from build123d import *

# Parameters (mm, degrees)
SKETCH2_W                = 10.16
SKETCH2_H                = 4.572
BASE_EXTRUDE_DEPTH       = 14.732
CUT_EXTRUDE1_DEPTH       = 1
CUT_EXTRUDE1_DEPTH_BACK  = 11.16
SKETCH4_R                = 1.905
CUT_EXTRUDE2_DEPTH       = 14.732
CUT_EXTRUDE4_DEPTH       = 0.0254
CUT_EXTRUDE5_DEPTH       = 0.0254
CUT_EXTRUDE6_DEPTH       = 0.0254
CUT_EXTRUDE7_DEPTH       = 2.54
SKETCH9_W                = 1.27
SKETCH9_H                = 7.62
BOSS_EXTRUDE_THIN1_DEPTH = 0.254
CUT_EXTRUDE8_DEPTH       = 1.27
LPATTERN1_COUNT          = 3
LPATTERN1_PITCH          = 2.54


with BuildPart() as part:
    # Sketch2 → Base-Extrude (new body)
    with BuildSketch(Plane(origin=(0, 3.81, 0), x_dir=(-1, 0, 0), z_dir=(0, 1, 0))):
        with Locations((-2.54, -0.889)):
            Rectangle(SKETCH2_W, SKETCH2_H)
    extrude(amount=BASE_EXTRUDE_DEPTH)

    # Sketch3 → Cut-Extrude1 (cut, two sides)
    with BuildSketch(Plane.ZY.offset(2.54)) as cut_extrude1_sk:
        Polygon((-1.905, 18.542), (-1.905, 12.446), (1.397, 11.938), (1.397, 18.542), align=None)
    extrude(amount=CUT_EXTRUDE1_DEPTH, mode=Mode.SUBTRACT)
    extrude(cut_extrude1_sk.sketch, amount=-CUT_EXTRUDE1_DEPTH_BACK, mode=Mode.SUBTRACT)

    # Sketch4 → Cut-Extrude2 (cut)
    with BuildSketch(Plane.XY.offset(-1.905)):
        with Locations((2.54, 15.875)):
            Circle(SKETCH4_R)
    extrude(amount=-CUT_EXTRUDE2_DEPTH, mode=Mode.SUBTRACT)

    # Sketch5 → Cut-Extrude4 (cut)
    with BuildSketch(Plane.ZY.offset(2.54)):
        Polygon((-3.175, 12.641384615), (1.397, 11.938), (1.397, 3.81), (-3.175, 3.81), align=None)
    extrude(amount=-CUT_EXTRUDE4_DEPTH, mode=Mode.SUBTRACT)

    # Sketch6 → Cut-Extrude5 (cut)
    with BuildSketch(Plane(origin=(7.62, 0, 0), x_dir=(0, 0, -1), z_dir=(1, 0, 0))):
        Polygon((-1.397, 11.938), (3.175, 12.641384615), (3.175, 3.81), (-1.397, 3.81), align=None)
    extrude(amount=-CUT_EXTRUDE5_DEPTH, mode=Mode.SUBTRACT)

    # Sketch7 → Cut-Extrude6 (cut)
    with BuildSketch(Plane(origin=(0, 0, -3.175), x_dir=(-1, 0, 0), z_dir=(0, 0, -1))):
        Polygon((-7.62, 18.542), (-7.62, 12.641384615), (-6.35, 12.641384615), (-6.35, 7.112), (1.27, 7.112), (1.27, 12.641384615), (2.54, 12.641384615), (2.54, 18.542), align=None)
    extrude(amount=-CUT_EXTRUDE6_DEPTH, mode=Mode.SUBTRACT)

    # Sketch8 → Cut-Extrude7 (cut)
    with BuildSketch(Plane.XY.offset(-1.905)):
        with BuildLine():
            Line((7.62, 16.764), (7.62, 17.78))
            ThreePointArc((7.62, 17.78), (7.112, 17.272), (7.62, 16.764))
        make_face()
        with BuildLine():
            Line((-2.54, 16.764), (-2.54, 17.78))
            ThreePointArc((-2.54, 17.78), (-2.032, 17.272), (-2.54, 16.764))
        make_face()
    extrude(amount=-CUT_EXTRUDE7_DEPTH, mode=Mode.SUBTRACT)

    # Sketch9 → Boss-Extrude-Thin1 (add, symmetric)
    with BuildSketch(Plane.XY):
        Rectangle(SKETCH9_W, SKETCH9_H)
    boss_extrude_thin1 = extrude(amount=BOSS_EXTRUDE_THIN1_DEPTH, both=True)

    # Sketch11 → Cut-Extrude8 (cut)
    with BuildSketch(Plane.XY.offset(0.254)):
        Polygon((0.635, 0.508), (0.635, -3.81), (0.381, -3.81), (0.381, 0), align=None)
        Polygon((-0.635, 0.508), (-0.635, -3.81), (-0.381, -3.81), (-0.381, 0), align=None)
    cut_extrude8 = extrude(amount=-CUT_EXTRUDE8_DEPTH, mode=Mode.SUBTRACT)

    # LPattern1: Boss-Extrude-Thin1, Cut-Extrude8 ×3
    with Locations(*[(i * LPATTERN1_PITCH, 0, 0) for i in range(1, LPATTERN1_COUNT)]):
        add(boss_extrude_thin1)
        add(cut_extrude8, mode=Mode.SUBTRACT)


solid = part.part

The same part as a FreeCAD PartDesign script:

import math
import FreeCAD as App
import Part
import Sketcher
from FreeCAD import Vector
Q = App.Units.Quantity


def add_polygon(sketch, points):
    """Adds a closed chain of lines whose ends are joined by coincident constraints."""
    first, n = sketch.GeometryCount, len(points)
    for a, b in zip(points, points[1:] + points[:1]):
        sketch.addGeometry(Part.LineSegment(App.Vector(*a, 0), App.Vector(*b, 0)), False)
    for i in range(n):
        sketch.addConstraint(Sketcher.Constraint("Coincident", first + i, 2, first + (i + 1) % n, 1))

doc = App.newDocument("Part")
body = doc.addObject("PartDesign::Body", "Body")

sketch1 = body.newObject("Sketcher::SketchObject", "Sketch")
sketch1.AttachmentSupport = (doc.getObject("XZ_Plane"), [""])
sketch1.MapMode = "FlatFace"
sketch1.AttachmentOffset = App.Placement(Vector(0, 0, -0.15 * 25.4), App.Rotation())
add_polygon(sketch1, [(7.62, 1.397), (7.62, -3.175), (-2.54, -3.175), (-2.54, 1.397)])
sketch1.addConstraint([
    Sketcher.Constraint("Vertical", 0),
    Sketcher.Constraint("Horizontal", 1),
    Sketcher.Constraint("Vertical", 2),
    Sketcher.Constraint("Horizontal", 3),
    Sketcher.Constraint("DistanceX", 1, 2, 1, 1, Q("0.4 in")),
    Sketcher.Constraint("DistanceY", 0, 2, 0, 1, Q("0.18 in")),
    Sketcher.Constraint("DistanceX", -1, 1, 0, 2, Q("0.3 in")),
    Sketcher.Constraint("DistanceY", 0, 2, -1, 1, Q("0.125 in")),
])
pad1 = body.newObject("PartDesign::Pad", "Pad")
pad1.Profile = sketch1
pad1.Length = Q("0.58 in")
pad1.Reversed = True

sketch2 = body.newObject("Sketcher::SketchObject", "Sketch001")
sketch2.AttachmentSupport = (doc.getObject("YZ_Plane"), [""])
sketch2.MapMode = "FlatFace"
sketch2.AttachmentOffset = App.Placement(Vector(0, 0, -0.1 * 25.4), App.Rotation())
add_polygon(sketch2, [(18.542, -1.905), (12.446, -1.905), (11.938, 1.397), (18.542, 1.397)])
sketch2.addConstraint([
    Sketcher.Constraint("Horizontal", 0),
    Sketcher.Constraint("Horizontal", 2),
    Sketcher.Constraint("Vertical", 3),
    Sketcher.Constraint("DistanceX", 0, 2, 0, 1, Q("0.24 in")),
    Sketcher.Constraint("DistanceX", 2, 1, 2, 2, Q("0.26 in")),
    Sketcher.Constraint("DistanceY", 3, 2, 3, 1, Q("0.13 in")),
    Sketcher.Constraint("DistanceX", -1, 1, 0, 2, Q("0.49 in")),
    Sketcher.Constraint("DistanceY", 0, 2, -1, 1, Q("0.075 in")),
])
pocket1 = body.newObject("PartDesign::Pocket", "Pocket")
pocket1.Profile = sketch2
pocket1.Type = "ThroughAll"
pocket1.Midplane = True

sketch3 = body.newObject("Sketcher::SketchObject", "Sketch002")
sketch3.AttachmentSupport = (doc.getObject("XY_Plane"), [""])
sketch3.MapMode = "FlatFace"
sketch3.AttachmentOffset = App.Placement(Vector(0, 0, -0.075 * 25.4), App.Rotation())
sketch3.addGeometry(Part.Circle(Vector(2.54, 15.875, 0), Vector(0, 0, 1), 1.905), False)
sketch3.addConstraint([
    Sketcher.Constraint("Diameter", 0, Q("0.15 in")),
    Sketcher.Constraint("DistanceX", -1, 1, 0, 3, Q("0.1 in")),
    Sketcher.Constraint("DistanceY", -1, 1, 0, 3, Q("0.625 in")),
])
pocket2 = body.newObject("PartDesign::Pocket", "Pocket001")
pocket2.Profile = sketch3
pocket2.Length = Q("0.58 in")

sketch4 = body.newObject("Sketcher::SketchObject", "Sketch003")
sketch4.AttachmentSupport = (doc.getObject("YZ_Plane"), [""])
sketch4.MapMode = "FlatFace"
sketch4.AttachmentOffset = App.Placement(Vector(0, 0, -0.1 * 25.4), App.Rotation())
add_polygon(sketch4, [(11.938, 1.397), (12.641385, -3.175), (3.81, -3.175), (3.81, 1.397)])
sketch4.addConstraint([
    Sketcher.Constraint("Horizontal", 1),
    Sketcher.Constraint("Vertical", 2),
    Sketcher.Constraint("Horizontal", 3),
    Sketcher.Constraint("DistanceX", 3, 1, 3, 2, Q("0.32 in")),
    Sketcher.Constraint("DistanceY", 2, 1, 2, 2, Q("0.18 in")),
    Sketcher.Constraint("DistanceX", -1, 1, 1, 2, Q("0.15 in")),
    Sketcher.Constraint("DistanceY", 0, 2, -1, 1, Q("0.125 in")),
    Sketcher.Constraint("Distance", 0, 4.62579),
])
pocket3 = body.newObject("PartDesign::Pocket", "Pocket002")
pocket3.Profile = sketch4
pocket3.Length = Q("0.001 in")
pocket3.Reversed = True

sketch5 = body.newObject("Sketcher::SketchObject", "Sketch004")
sketch5.AttachmentSupport = (doc.getObject("YZ_Plane"), [""])
sketch5.MapMode = "FlatFace"
sketch5.AttachmentOffset = App.Placement(Vector(0, 0, 0.3 * 25.4), App.Rotation())
add_polygon(sketch5, [(12.641385, -3.175), (11.938, 1.397), (3.81, 1.397), (3.81, -3.175)])
sketch5.addConstraint([
    Sketcher.Constraint("Horizontal", 1),
    Sketcher.Constraint("Vertical", 2),
    Sketcher.Constraint("Horizontal", 3),
    Sketcher.Constraint("DistanceX", 1, 2, 1, 1, Q("0.32 in")),
    Sketcher.Constraint("DistanceY", 2, 2, 2, 1, Q("0.18 in")),
    Sketcher.Constraint("DistanceX", -1, 1, 0, 2, Q("0.47 in")),
    Sketcher.Constraint("DistanceY", -1, 1, 0, 2, Q("0.055 in")),
    Sketcher.Constraint("Distance", 0, 4.62579),
])
pocket4 = body.newObject("PartDesign::Pocket", "Pocket003")
pocket4.Profile = sketch5
pocket4.Length = Q("0.001 in")

sketch6 = body.newObject("Sketcher::SketchObject", "Sketch005")
sketch6.AttachmentSupport = (doc.getObject("XY_Plane"), [""])
sketch6.MapMode = "FlatFace"
sketch6.AttachmentOffset = App.Placement(Vector(0, 0, -0.125 * 25.4), App.Rotation())
add_polygon(sketch6, [(7.62, 18.542), (7.62, 12.641385), (6.35, 12.641385), (6.35, 7.112), (-1.27, 7.112), (-1.27, 12.641385), (-2.54, 12.641385), (-2.54, 18.542)])
sketch6.addConstraint([
    Sketcher.Constraint("Vertical", 0),
    Sketcher.Constraint("Horizontal", 1),
    Sketcher.Constraint("Vertical", 2),
    Sketcher.Constraint("Horizontal", 3),
    Sketcher.Constraint("Vertical", 4),
    Sketcher.Constraint("Horizontal", 5),
    Sketcher.Constraint("Vertical", 6),
    Sketcher.Constraint("Horizontal", 7),
    Sketcher.Constraint("Horizontal", 1, 2, 4, 2),
    Sketcher.Constraint("Equal", 1, 5),
    Sketcher.Constraint("DistanceX", 3, 2, 3, 1, Q("0.3 in")),
    Sketcher.Constraint("DistanceX", 7, 1, 7, 2, Q("0.4 in")),
    Sketcher.Constraint("DistanceX", -1, 1, 0, 2, Q("0.3 in")),
    Sketcher.Constraint("DistanceY", -1, 1, 2, 2, Q("0.28 in")),
    Sketcher.Constraint("DistanceY", -1, 1, 6, 2, Q("0.73 in")),
    Sketcher.Constraint("DistanceY", 0, 2, 0, 1, 5.900615),
])
pocket5 = body.newObject("PartDesign::Pocket", "Pocket004")
pocket5.Profile = sketch6
pocket5.Length = Q("0.001 in")
pocket5.Reversed = True

sketch7 = body.newObject("Sketcher::SketchObject", "Sketch006")
sketch7.AttachmentSupport = (doc.getObject("XY_Plane"), [""])
sketch7.MapMode = "FlatFace"
sketch7.AttachmentOffset = App.Placement(Vector(0, 0, -0.075 * 25.4), App.Rotation())
sketch7.addGeometry([
    Part.LineSegment(Vector(7.62, 16.764, 0), Vector(7.62, 17.78, 0)),
    Part.ArcOfCircle(Part.Circle(Vector(7.62, 17.272, 0), Vector(0, 0, 1), 0.508), math.radians(90), math.radians(270)),
    Part.LineSegment(Vector(-2.54, 17.78, 0), Vector(-2.54, 16.764, 0)),
    Part.ArcOfCircle(Part.Circle(Vector(-2.54, 17.272, 0), Vector(0, 0, 1), 0.508), math.radians(-90), math.radians(90)),
], False)
sketch7.addConstraint([
    Sketcher.Constraint("Coincident", 0, 1, 1, 2),
    Sketcher.Constraint("Coincident", 1, 1, 0, 2),
    Sketcher.Constraint("Coincident", 2, 1, 3, 2),
    Sketcher.Constraint("Coincident", 3, 1, 2, 2),
    Sketcher.Constraint("Vertical", 0),
    Sketcher.Constraint("Vertical", 2),
    Sketcher.Constraint("Equal", 1, 3),
    Sketcher.Constraint("Horizontal", 1, 3, 3, 3),
    Sketcher.Constraint("Vertical", 1, 3, 0, 1),
    Sketcher.Constraint("Vertical", 3, 3, 2, 1),
    Sketcher.Constraint("Radius", 1, Q("0.02 in")),
    Sketcher.Constraint("DistanceX", -1, 1, 1, 3, Q("0.3 in")),
    Sketcher.Constraint("DistanceX", 3, 3, -1, 1, Q("0.1 in")),
    Sketcher.Constraint("DistanceY", -1, 1, 1, 1, Q("0.7 in")),
])
pocket6 = body.newObject("PartDesign::Pocket", "Pocket005")
pocket6.Profile = sketch7
pocket6.Length = Q("0.1 in")

sketch8 = body.newObject("Sketcher::SketchObject", "Sketch007")
sketch8.AttachmentSupport = (doc.getObject("XY_Plane"), [""])
sketch8.MapMode = "FlatFace"
add_polygon(sketch8, [(-0.635, 3.81), (-0.635, -3.81), (0.635, -3.81), (0.635, 3.81)])
sketch8.addConstraint([
    Sketcher.Constraint("Vertical", 0),
    Sketcher.Constraint("Horizontal", 1),
    Sketcher.Constraint("Vertical", 2),
    Sketcher.Constraint("Horizontal", 3),
    Sketcher.Constraint("Symmetric", 0, 2, 2, 2, -1, 1),
    Sketcher.Constraint("DistanceY", 0, 2, 0, 1, Q("0.3 in")),
    Sketcher.Constraint("DistanceX", 1, 1, 1, 2, Q("0.05 in")),
])
pad2 = body.newObject("PartDesign::Pad", "Pad001")
pad2.Profile = sketch8
pad2.Length = Q("0.02 in")
pad2.Midplane = True

sketch9 = body.newObject("Sketcher::SketchObject", "Sketch008")
sketch9.AttachmentSupport = (doc.getObject("XY_Plane"), [""])
sketch9.MapMode = "FlatFace"
sketch9.AttachmentOffset = App.Placement(Vector(0, 0, 0.01 * 25.4), App.Rotation())
add_polygon(sketch9, [(0.635, -3.81), (0.635, 0.508), (0.381, 0), (0.381, -3.81)])
add_polygon(sketch9, [(-0.635, 0.508), (-0.635, -3.81), (-0.381, -3.81), (-0.381, 0)])
sketch9.addConstraint([
    Sketcher.Constraint("Vertical", 0),
    Sketcher.Constraint("Vertical", 2),
    Sketcher.Constraint("Horizontal", 3),
    Sketcher.Constraint("Vertical", 4),
    Sketcher.Constraint("Horizontal", 5),
    Sketcher.Constraint("Vertical", 6),
    Sketcher.Constraint("Symmetric", 1, 2, 6, 2, -1, 1),
    Sketcher.Constraint("Symmetric", 3, 2, 4, 2, -2),
    Sketcher.Constraint("PointOnObject", 1, 2, -1),
    Sketcher.Constraint("Horizontal", 0, 2, 7, 2),
    Sketcher.Constraint("DistanceX", 3, 1, 3, 2, Q("0.01 in")),
    Sketcher.Constraint("DistanceY", 0, 1, 0, 2, Q("0.17 in")),
    Sketcher.Constraint("DistanceY", 2, 2, 2, 1, Q("0.15 in")),
    Sketcher.Constraint("DistanceX", 4, 2, 2, 2, Q("0.04 in")),
])
pocket7 = body.newObject("PartDesign::Pocket", "Pocket006")
pocket7.Profile = sketch9
pocket7.Length = Q("0.05 in")
doc.recompute()

linearpattern = body.newObject("PartDesign::LinearPattern", "LinearPattern")
linearpattern.Originals = [pad2, pocket7]
linearpattern.Direction = (doc.getObject("X_Axis"), [""])
linearpattern.Mode = "offset"
linearpattern.Offset = Q("0.1 in")
linearpattern.Occurrences = 3
body.Tip = linearpattern

doc.recompute()
